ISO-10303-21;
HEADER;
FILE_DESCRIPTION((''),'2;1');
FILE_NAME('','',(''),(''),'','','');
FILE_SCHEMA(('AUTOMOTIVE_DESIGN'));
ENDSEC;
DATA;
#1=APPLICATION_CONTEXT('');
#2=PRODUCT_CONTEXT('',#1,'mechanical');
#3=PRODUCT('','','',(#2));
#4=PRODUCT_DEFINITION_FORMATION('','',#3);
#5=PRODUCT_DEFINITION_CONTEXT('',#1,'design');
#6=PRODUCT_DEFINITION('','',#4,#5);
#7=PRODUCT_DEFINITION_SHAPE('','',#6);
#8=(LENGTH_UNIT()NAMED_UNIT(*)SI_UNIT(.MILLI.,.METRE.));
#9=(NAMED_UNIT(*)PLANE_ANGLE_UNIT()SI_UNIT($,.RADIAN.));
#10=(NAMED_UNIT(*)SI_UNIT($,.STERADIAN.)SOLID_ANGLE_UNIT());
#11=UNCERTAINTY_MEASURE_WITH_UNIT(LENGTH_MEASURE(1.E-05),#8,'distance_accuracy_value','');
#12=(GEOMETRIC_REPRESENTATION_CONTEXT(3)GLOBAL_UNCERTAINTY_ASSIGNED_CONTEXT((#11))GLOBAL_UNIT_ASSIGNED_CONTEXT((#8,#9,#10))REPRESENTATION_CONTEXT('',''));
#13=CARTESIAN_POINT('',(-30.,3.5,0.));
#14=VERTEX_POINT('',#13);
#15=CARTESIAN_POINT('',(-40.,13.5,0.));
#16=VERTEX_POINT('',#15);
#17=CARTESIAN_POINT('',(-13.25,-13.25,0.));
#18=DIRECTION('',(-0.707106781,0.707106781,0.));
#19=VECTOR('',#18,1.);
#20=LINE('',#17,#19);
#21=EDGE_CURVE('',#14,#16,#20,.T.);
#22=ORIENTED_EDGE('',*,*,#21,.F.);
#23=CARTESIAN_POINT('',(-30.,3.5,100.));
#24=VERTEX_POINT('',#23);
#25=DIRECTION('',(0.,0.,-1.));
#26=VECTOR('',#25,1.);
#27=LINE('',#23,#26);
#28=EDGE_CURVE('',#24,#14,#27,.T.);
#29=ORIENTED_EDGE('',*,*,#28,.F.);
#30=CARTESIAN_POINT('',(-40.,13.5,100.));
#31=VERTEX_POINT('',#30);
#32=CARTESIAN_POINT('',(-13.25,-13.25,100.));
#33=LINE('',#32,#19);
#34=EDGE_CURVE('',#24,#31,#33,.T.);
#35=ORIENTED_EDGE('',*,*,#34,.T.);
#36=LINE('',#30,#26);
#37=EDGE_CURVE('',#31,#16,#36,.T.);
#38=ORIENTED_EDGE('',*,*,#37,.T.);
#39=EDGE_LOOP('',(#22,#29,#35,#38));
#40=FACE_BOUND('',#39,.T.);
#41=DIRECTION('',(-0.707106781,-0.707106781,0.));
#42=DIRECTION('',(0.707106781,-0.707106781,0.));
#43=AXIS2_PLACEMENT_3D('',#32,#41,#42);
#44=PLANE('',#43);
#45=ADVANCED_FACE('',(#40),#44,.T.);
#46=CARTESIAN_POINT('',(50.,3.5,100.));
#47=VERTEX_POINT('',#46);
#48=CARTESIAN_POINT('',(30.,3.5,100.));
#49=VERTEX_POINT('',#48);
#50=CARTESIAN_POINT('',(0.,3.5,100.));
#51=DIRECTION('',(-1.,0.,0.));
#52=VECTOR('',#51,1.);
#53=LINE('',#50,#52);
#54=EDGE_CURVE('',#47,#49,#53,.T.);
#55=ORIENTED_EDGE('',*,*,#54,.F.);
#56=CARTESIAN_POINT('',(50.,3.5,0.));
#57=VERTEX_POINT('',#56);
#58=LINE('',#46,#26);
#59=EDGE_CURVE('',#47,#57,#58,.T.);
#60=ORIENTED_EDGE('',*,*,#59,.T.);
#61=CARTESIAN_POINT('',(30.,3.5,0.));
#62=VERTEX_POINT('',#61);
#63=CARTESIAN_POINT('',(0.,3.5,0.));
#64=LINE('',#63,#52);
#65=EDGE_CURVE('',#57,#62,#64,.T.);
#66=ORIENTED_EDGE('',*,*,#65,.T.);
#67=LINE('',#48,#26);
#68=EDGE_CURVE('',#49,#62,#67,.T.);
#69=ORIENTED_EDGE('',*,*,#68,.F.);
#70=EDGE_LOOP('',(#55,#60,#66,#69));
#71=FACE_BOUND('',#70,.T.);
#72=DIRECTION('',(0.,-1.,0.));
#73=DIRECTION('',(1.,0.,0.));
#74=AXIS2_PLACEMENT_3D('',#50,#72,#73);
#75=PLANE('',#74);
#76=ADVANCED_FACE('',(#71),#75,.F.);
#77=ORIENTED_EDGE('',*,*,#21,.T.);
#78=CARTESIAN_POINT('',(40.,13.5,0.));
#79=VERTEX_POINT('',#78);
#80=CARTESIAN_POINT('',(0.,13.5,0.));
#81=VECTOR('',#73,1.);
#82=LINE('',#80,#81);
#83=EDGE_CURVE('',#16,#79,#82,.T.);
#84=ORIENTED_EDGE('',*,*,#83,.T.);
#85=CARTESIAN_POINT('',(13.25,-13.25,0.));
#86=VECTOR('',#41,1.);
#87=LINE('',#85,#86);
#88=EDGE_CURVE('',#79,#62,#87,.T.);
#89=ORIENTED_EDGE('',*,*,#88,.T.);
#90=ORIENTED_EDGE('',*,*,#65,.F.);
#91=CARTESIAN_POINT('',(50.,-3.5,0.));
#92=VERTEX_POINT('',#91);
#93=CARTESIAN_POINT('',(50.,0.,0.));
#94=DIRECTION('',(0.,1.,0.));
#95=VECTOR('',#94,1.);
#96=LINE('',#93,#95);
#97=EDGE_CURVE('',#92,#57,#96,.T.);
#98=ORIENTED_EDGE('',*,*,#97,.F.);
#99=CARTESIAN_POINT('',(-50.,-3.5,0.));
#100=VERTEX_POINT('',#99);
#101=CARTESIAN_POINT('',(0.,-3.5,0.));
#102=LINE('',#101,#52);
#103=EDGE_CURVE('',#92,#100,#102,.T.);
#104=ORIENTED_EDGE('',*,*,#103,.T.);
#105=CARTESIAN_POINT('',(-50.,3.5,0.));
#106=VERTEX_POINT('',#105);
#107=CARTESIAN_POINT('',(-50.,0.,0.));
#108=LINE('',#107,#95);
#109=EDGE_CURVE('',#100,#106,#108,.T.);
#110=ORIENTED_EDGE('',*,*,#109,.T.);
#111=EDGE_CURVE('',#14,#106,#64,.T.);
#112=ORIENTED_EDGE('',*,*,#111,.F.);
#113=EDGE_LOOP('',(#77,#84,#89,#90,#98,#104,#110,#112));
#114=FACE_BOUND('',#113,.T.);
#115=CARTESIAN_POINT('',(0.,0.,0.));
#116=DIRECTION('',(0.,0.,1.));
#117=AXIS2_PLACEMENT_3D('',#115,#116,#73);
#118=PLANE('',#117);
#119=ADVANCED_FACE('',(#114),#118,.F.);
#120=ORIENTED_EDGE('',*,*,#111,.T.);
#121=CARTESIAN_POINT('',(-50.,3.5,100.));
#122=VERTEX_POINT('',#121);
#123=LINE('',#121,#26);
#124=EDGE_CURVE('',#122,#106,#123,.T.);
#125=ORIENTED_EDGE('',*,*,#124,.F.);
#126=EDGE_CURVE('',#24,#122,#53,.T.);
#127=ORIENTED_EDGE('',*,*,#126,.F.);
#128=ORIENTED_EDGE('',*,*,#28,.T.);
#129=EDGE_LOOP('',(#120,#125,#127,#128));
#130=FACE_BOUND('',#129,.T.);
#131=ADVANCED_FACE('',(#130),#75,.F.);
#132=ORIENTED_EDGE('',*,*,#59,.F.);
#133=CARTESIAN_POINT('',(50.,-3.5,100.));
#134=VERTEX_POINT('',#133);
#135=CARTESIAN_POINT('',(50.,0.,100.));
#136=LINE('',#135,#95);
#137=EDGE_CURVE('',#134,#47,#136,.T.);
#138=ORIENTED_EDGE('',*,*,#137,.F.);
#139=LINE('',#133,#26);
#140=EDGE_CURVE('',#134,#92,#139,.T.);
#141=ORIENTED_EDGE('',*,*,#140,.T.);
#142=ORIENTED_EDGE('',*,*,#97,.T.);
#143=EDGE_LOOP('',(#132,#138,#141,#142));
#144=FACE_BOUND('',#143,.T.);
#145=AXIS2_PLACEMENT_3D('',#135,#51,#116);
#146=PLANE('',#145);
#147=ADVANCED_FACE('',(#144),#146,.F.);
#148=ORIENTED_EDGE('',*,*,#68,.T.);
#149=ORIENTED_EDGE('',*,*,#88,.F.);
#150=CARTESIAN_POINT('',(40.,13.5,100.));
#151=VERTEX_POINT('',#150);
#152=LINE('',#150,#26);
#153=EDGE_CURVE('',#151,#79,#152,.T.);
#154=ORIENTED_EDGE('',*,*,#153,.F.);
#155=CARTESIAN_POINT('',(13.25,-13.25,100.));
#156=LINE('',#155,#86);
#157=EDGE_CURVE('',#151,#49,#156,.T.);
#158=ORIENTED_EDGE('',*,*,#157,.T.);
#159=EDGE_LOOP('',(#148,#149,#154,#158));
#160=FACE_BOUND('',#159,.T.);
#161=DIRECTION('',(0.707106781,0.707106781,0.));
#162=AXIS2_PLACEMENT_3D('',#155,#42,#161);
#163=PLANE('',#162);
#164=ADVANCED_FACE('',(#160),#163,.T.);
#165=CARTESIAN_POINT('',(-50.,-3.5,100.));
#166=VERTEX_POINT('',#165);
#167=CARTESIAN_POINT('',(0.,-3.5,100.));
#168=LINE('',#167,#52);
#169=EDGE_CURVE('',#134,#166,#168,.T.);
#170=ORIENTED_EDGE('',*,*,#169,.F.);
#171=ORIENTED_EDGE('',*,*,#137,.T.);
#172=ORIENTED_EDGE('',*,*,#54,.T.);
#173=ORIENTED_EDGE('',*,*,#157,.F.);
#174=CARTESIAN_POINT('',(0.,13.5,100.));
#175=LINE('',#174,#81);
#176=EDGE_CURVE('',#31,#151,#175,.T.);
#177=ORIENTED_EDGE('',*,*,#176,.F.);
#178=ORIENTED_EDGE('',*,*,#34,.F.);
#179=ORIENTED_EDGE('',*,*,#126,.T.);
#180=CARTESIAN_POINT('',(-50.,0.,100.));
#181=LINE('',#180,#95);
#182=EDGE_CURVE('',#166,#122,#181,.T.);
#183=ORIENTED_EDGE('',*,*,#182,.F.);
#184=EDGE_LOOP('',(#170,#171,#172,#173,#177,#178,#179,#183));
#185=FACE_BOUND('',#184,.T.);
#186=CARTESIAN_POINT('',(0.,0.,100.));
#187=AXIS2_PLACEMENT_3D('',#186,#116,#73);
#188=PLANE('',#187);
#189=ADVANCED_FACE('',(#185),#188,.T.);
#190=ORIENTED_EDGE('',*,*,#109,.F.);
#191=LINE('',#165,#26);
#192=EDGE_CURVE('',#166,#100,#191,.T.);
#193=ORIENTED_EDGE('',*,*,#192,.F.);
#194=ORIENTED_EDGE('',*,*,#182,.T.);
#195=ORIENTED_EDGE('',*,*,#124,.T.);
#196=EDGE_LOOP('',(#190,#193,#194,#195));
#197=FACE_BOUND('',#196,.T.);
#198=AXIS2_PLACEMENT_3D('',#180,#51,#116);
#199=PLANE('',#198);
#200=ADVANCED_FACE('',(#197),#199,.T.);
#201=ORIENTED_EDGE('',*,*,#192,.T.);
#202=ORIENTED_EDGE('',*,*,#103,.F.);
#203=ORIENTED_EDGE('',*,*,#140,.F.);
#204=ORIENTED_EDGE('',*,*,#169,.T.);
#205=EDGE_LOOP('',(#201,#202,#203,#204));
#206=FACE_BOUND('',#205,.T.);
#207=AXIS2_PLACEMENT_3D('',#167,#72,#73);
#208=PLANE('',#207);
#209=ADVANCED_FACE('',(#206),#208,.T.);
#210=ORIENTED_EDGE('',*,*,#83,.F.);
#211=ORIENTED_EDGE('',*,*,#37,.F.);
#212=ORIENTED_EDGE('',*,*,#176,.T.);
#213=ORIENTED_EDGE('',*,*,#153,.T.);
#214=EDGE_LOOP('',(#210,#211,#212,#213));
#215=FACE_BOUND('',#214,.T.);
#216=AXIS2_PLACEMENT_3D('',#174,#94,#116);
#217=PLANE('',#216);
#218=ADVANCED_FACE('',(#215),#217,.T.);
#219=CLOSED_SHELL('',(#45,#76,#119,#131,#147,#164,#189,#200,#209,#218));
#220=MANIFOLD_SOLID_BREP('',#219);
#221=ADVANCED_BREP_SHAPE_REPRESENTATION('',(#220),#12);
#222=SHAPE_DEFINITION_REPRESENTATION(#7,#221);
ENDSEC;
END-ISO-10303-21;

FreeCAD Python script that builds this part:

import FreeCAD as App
import Part
import Sketcher
from FreeCAD import Vector


def add_polygon(sketch, points):
    """Adds a closed chain of lines whose ends are joined by coincident constraints."""
    first, n = sketch.GeometryCount, len(points)
    for a, b in zip(points, points[1:] + points[:1]):
        sketch.addGeometry(Part.LineSegment(App.Vector(*a, 0), App.Vector(*b, 0)), False)
    for i in range(n):
        sketch.addConstraint(Sketcher.Constraint("Coincident", first + i, 2, first + (i + 1) % n, 1))

doc = App.newDocument("Part")
params = doc.addObject("Spreadsheet::Sheet", "Params")
for row, (alias, value) in enumerate([
    ("sketch1_width", "20 mm"),
    ("sketch1_width2", "100 mm"),
    ("sketch1_width3", "80 mm"),
    ("sketch1_height", "7 mm"),
    ("pad1_length", "100 mm"),
], start=1):
    params.set(f"A{row}", alias)
    params.set(f"B{row}", "=" + value)
    params.setAlias(f"B{row}", alias)

body = doc.addObject("PartDesign::Body", "Body")

sketch1 = body.newObject("Sketcher::SketchObject", "Sketch")
sketch1.AttachmentSupport = (doc.getObject("XY_Plane"), [""])
sketch1.MapMode = "FlatFace"
add_polygon(sketch1, [(-40, 14), (-30, 4), (-50, 4), (-50, -4), (50, -4), (50, 4), (30, 4), (40, 14)])
sketch1.addConstraint([
    Sketcher.Constraint("Horizontal", 1),
    Sketcher.Constraint("Vertical", 2),
    Sketcher.Constraint("Horizontal", 3),
    Sketcher.Constraint("Vertical", 4),
    Sketcher.Constraint("Horizontal", 5),
    Sketcher.Constraint("Horizontal", 7),
    Sketcher.Constraint("Symmetric", 1, 2, 3, 2, -1, 1),
    Sketcher.Constraint("Symmetric", 0, 2, 5, 2, -2),
    Sketcher.Constraint("Perpendicular", 0, 6),
    Sketcher.Constraint("Equal", 0, 6),
    Sketcher.Constraint("DistanceX", 1, 2, 1, 1, 20.0),
    Sketcher.Constraint("DistanceX", 3, 1, 3, 2, 100.0),
    Sketcher.Constraint("DistanceX", 7, 2, 7, 1, 80.0),
    Sketcher.Constraint("DistanceY", 2, 2, 2, 1, 7.0),
])
sketch1.setExpression("Constraints[18]", "Params.sketch1_width")
sketch1.setExpression("Constraints[19]", "Params.sketch1_width2")
sketch1.setExpression("Constraints[20]", "Params.sketch1_width3")
sketch1.setExpression("Constraints[21]", "Params.sketch1_height")
pad1 = body.newObject("PartDesign::Pad", "Pad")
pad1.Profile = sketch1
pad1.setExpression("Length", "Params.pad1_length")

doc.recompute()
